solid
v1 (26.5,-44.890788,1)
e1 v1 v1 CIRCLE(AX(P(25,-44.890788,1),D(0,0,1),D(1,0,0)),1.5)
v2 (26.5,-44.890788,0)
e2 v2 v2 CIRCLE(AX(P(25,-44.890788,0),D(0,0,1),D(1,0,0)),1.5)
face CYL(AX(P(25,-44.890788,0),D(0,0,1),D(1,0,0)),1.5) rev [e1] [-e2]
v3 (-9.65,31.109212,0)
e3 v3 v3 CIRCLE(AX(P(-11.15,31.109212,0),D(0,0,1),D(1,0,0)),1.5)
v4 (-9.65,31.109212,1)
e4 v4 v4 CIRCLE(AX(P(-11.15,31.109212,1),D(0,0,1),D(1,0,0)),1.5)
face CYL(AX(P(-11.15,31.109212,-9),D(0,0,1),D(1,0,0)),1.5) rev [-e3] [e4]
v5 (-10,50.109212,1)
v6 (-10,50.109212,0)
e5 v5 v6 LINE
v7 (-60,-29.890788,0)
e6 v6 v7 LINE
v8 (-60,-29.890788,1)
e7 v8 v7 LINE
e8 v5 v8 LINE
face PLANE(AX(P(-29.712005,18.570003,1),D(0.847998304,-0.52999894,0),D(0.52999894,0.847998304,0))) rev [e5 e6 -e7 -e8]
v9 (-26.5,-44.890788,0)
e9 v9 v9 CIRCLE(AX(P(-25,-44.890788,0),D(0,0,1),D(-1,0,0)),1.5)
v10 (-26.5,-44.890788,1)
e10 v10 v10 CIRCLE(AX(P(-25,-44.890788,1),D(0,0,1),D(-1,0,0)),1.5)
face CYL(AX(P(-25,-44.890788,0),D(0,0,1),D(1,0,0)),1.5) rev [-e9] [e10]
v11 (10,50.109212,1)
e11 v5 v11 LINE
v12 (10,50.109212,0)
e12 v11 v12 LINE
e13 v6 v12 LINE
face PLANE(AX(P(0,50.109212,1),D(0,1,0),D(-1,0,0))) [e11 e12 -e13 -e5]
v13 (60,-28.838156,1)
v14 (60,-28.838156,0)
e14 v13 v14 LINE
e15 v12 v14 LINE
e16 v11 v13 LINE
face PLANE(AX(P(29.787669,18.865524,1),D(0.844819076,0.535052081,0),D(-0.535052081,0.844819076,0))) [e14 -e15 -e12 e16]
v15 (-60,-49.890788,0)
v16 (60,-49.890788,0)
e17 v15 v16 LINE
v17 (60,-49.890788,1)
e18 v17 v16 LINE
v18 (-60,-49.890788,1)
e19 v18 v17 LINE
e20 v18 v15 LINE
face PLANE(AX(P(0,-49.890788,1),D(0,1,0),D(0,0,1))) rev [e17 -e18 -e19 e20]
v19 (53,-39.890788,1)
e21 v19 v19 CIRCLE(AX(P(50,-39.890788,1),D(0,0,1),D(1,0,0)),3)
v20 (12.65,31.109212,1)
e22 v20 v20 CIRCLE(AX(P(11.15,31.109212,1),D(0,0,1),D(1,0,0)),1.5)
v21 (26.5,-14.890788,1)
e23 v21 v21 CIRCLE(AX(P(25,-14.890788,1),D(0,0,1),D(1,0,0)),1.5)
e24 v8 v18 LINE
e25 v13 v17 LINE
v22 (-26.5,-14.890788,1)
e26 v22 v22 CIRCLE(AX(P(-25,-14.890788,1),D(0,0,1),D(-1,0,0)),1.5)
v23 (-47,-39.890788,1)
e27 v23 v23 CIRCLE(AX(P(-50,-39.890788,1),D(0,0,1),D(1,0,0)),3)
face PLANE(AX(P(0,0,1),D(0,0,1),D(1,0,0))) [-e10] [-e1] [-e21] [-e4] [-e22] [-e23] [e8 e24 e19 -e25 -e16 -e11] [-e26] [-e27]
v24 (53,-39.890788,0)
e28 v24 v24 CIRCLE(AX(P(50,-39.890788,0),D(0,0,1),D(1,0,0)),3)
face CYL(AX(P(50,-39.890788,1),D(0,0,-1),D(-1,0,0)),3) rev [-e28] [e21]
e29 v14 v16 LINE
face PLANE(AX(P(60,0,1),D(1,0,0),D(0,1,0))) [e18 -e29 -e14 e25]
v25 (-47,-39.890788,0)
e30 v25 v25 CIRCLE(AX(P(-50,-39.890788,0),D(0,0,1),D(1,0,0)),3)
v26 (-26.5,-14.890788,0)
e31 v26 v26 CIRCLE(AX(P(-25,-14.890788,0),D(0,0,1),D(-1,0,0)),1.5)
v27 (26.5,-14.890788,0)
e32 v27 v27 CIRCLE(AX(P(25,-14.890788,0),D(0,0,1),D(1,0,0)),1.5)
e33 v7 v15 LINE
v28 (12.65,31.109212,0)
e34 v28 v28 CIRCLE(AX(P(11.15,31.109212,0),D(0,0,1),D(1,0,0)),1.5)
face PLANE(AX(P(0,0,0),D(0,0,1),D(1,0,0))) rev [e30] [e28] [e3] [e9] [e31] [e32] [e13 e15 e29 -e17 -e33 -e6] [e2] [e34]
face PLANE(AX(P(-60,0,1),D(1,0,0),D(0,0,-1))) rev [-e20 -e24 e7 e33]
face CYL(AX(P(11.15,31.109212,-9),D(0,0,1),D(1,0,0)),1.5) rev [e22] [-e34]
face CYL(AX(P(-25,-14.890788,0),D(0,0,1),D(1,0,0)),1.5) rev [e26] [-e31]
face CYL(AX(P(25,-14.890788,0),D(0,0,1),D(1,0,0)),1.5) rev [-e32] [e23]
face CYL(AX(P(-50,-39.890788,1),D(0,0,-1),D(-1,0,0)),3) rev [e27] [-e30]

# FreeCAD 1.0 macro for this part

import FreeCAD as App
import Part
import Sketcher


def add_polygon(sketch, points):
    """Adds a closed chain of lines whose ends are joined by coincident constraints."""
    first, n = sketch.GeometryCount, len(points)
    for a, b in zip(points, points[1:] + points[:1]):
        sketch.addGeometry(Part.LineSegment(App.Vector(*a, 0), App.Vector(*b, 0)), False)
    for i in range(n):
        sketch.addConstraint(Sketcher.Constraint("Coincident", first + i, 2, first + (i + 1) % n, 1))

doc = App.newDocument("Part")
body = doc.addObject("PartDesign::Body", "Body")

sketch1 = doc.addObject("Sketcher::SketchObject", "Sketch")
body.addObject(sketch1)
sketch1.AttachmentSupport = (doc.XY_Plane, [""])
sketch1.MapMode = "FlatFace"
add_polygon(sketch1, [(10, 50.109212), (-10, 50.109212), (-60, -29.890788), (-60, -49.890788), (60, -49.890788), (60, -28.838156)])
sketch1.addGeometry(Part.Circle(App.Vector(50, -39.890788, 0), App.Vector(0, 0, 1), 3), False)
sketch1.addGeometry(Part.Circle(App.Vector(-50, -39.890788, 0), App.Vector(0, 0, 1), 3), False)
sketch1.addConstraint([
    Sketcher.Constraint("Horizontal", 0),
    Sketcher.Constraint("Vertical", 2),
    Sketcher.Constraint("Horizontal", 3),
    Sketcher.Constraint("Vertical", 4),
    Sketcher.Constraint("Equal", 6, 7),
    Sketcher.Constraint("Symmetric", 6, 3, 7, 3, -2),
    Sketcher.Constraint("Equal", 0, 2),
    Sketcher.Constraint("Diameter", 6, 6.0),
    Sketcher.Constraint("DistanceX", 0, 2, 0, 1, 20.0),
    Sketcher.Constraint("DistanceX", 3, 1, 3, 2, 120.0),
    Sketcher.Constraint("DistanceX", -1, 1, 6, 3, 50.0),
    Sketcher.Constraint("DistanceX", 0, 2, -1, 1, 10.0),
    Sketcher.Constraint("DistanceX", 1, 2, -1, 1, 60.0),
    Sketcher.Constraint("DistanceY", 7, 3, 0, 2, 90.0),
    Sketcher.Constraint("DistanceY", 7, 3, 1, 2, 10.0),
    Sketcher.Constraint("DistanceY", 4, 1, 4, 2, 21.052632),
    Sketcher.Constraint("DistanceY", 6, 3, -1, 1, 39.890788),
])
pad1 = doc.addObject("PartDesign::Pad", "Pad")
body.addObject(pad1)
pad1.Profile = sketch1
pad1.Length = 1

sketch2 = doc.addObject("Sketcher::SketchObject", "Sketch001")
body.addObject(sketch2)
sketch2.AttachmentSupport = (doc.XY_Plane, [""])
sketch2.MapMode = "FlatFace"
sketch2.AttachmentOffset = App.Placement(App.Vector(0, 0, 1), App.Rotation())
sketch2.addGeometry([
    Part.Circle(App.Vector(-11.15, 31.109212, 0), App.Vector(0, 0, 1), 1.5),
    Part.Circle(App.Vector(11.15, 31.109212, 0), App.Vector(0, 0, 1), 1.5),
], False)
sketch2.addConstraint([
    Sketcher.Constraint("Equal", 0, 1),
    Sketcher.Constraint("Symmetric", 0, 3, 1, 3, -2),
    Sketcher.Constraint("Diameter", 0, 3.0),
    Sketcher.Constraint("DistanceX", 0, 3, 1, 3, 22.3),
    Sketcher.Constraint("DistanceY", -1, 1, 0, 3, 31.109212),
])
pocket1 = doc.addObject("PartDesign::Pocket", "Pocket")
body.addObject(pocket1)
pocket1.Profile = sketch2
pocket1.Length = 10

sketch3 = doc.addObject("Sketcher::SketchObject", "Sketch002")
body.addObject(sketch3)
sketch3.AttachmentSupport = (doc.XY_Plane, [""])
sketch3.MapMode = "FlatFace"
sketch3.AttachmentOffset = App.Placement(App.Vector(0, 0, 1), App.Rotation())
sketch3.addGeometry([
    Part.Circle(App.Vector(25, -14.890788, 0), App.Vector(0, 0, 1), 1.5),
    Part.Circle(App.Vector(25, -44.890788, 0), App.Vector(0, 0, 1), 1.5),
    Part.Circle(App.Vector(-25, -44.890788, 0), App.Vector(0, 0, 1), 1.5),
    Part.Circle(App.Vector(-25, -14.890788, 0), App.Vector(0, 0, 1), 1.5),
], False)
sketch3.addConstraint([
    Sketcher.Constraint("Equal", 0, 1),
    Sketcher.Constraint("Equal", 1, 2),
    Sketcher.Constraint("Equal", 2, 3),
    Sketcher.Constraint("Symmetric", 1, 3, 2, 3, -2),
    Sketcher.Constraint("Symmetric", 0, 3, 3, 3, -2),
    Sketcher.Constraint("Vertical", 0, 3, 1, 3),
    Sketcher.Constraint("Diameter", 0, 3.0),
    Sketcher.Constraint("DistanceX", -1, 1, 0, 3, 25.0),
    Sketcher.Constraint("DistanceY", 1, 3, 0, 3, 30.0),
    Sketcher.Constraint("DistanceY", 0, 3, -1, 1, 14.890788),
])
pocket2 = doc.addObject("PartDesign::Pocket", "Pocket001")
body.addObject(pocket2)
pocket2.Profile = sketch3
pocket2.Length = 1

doc.recompute()
